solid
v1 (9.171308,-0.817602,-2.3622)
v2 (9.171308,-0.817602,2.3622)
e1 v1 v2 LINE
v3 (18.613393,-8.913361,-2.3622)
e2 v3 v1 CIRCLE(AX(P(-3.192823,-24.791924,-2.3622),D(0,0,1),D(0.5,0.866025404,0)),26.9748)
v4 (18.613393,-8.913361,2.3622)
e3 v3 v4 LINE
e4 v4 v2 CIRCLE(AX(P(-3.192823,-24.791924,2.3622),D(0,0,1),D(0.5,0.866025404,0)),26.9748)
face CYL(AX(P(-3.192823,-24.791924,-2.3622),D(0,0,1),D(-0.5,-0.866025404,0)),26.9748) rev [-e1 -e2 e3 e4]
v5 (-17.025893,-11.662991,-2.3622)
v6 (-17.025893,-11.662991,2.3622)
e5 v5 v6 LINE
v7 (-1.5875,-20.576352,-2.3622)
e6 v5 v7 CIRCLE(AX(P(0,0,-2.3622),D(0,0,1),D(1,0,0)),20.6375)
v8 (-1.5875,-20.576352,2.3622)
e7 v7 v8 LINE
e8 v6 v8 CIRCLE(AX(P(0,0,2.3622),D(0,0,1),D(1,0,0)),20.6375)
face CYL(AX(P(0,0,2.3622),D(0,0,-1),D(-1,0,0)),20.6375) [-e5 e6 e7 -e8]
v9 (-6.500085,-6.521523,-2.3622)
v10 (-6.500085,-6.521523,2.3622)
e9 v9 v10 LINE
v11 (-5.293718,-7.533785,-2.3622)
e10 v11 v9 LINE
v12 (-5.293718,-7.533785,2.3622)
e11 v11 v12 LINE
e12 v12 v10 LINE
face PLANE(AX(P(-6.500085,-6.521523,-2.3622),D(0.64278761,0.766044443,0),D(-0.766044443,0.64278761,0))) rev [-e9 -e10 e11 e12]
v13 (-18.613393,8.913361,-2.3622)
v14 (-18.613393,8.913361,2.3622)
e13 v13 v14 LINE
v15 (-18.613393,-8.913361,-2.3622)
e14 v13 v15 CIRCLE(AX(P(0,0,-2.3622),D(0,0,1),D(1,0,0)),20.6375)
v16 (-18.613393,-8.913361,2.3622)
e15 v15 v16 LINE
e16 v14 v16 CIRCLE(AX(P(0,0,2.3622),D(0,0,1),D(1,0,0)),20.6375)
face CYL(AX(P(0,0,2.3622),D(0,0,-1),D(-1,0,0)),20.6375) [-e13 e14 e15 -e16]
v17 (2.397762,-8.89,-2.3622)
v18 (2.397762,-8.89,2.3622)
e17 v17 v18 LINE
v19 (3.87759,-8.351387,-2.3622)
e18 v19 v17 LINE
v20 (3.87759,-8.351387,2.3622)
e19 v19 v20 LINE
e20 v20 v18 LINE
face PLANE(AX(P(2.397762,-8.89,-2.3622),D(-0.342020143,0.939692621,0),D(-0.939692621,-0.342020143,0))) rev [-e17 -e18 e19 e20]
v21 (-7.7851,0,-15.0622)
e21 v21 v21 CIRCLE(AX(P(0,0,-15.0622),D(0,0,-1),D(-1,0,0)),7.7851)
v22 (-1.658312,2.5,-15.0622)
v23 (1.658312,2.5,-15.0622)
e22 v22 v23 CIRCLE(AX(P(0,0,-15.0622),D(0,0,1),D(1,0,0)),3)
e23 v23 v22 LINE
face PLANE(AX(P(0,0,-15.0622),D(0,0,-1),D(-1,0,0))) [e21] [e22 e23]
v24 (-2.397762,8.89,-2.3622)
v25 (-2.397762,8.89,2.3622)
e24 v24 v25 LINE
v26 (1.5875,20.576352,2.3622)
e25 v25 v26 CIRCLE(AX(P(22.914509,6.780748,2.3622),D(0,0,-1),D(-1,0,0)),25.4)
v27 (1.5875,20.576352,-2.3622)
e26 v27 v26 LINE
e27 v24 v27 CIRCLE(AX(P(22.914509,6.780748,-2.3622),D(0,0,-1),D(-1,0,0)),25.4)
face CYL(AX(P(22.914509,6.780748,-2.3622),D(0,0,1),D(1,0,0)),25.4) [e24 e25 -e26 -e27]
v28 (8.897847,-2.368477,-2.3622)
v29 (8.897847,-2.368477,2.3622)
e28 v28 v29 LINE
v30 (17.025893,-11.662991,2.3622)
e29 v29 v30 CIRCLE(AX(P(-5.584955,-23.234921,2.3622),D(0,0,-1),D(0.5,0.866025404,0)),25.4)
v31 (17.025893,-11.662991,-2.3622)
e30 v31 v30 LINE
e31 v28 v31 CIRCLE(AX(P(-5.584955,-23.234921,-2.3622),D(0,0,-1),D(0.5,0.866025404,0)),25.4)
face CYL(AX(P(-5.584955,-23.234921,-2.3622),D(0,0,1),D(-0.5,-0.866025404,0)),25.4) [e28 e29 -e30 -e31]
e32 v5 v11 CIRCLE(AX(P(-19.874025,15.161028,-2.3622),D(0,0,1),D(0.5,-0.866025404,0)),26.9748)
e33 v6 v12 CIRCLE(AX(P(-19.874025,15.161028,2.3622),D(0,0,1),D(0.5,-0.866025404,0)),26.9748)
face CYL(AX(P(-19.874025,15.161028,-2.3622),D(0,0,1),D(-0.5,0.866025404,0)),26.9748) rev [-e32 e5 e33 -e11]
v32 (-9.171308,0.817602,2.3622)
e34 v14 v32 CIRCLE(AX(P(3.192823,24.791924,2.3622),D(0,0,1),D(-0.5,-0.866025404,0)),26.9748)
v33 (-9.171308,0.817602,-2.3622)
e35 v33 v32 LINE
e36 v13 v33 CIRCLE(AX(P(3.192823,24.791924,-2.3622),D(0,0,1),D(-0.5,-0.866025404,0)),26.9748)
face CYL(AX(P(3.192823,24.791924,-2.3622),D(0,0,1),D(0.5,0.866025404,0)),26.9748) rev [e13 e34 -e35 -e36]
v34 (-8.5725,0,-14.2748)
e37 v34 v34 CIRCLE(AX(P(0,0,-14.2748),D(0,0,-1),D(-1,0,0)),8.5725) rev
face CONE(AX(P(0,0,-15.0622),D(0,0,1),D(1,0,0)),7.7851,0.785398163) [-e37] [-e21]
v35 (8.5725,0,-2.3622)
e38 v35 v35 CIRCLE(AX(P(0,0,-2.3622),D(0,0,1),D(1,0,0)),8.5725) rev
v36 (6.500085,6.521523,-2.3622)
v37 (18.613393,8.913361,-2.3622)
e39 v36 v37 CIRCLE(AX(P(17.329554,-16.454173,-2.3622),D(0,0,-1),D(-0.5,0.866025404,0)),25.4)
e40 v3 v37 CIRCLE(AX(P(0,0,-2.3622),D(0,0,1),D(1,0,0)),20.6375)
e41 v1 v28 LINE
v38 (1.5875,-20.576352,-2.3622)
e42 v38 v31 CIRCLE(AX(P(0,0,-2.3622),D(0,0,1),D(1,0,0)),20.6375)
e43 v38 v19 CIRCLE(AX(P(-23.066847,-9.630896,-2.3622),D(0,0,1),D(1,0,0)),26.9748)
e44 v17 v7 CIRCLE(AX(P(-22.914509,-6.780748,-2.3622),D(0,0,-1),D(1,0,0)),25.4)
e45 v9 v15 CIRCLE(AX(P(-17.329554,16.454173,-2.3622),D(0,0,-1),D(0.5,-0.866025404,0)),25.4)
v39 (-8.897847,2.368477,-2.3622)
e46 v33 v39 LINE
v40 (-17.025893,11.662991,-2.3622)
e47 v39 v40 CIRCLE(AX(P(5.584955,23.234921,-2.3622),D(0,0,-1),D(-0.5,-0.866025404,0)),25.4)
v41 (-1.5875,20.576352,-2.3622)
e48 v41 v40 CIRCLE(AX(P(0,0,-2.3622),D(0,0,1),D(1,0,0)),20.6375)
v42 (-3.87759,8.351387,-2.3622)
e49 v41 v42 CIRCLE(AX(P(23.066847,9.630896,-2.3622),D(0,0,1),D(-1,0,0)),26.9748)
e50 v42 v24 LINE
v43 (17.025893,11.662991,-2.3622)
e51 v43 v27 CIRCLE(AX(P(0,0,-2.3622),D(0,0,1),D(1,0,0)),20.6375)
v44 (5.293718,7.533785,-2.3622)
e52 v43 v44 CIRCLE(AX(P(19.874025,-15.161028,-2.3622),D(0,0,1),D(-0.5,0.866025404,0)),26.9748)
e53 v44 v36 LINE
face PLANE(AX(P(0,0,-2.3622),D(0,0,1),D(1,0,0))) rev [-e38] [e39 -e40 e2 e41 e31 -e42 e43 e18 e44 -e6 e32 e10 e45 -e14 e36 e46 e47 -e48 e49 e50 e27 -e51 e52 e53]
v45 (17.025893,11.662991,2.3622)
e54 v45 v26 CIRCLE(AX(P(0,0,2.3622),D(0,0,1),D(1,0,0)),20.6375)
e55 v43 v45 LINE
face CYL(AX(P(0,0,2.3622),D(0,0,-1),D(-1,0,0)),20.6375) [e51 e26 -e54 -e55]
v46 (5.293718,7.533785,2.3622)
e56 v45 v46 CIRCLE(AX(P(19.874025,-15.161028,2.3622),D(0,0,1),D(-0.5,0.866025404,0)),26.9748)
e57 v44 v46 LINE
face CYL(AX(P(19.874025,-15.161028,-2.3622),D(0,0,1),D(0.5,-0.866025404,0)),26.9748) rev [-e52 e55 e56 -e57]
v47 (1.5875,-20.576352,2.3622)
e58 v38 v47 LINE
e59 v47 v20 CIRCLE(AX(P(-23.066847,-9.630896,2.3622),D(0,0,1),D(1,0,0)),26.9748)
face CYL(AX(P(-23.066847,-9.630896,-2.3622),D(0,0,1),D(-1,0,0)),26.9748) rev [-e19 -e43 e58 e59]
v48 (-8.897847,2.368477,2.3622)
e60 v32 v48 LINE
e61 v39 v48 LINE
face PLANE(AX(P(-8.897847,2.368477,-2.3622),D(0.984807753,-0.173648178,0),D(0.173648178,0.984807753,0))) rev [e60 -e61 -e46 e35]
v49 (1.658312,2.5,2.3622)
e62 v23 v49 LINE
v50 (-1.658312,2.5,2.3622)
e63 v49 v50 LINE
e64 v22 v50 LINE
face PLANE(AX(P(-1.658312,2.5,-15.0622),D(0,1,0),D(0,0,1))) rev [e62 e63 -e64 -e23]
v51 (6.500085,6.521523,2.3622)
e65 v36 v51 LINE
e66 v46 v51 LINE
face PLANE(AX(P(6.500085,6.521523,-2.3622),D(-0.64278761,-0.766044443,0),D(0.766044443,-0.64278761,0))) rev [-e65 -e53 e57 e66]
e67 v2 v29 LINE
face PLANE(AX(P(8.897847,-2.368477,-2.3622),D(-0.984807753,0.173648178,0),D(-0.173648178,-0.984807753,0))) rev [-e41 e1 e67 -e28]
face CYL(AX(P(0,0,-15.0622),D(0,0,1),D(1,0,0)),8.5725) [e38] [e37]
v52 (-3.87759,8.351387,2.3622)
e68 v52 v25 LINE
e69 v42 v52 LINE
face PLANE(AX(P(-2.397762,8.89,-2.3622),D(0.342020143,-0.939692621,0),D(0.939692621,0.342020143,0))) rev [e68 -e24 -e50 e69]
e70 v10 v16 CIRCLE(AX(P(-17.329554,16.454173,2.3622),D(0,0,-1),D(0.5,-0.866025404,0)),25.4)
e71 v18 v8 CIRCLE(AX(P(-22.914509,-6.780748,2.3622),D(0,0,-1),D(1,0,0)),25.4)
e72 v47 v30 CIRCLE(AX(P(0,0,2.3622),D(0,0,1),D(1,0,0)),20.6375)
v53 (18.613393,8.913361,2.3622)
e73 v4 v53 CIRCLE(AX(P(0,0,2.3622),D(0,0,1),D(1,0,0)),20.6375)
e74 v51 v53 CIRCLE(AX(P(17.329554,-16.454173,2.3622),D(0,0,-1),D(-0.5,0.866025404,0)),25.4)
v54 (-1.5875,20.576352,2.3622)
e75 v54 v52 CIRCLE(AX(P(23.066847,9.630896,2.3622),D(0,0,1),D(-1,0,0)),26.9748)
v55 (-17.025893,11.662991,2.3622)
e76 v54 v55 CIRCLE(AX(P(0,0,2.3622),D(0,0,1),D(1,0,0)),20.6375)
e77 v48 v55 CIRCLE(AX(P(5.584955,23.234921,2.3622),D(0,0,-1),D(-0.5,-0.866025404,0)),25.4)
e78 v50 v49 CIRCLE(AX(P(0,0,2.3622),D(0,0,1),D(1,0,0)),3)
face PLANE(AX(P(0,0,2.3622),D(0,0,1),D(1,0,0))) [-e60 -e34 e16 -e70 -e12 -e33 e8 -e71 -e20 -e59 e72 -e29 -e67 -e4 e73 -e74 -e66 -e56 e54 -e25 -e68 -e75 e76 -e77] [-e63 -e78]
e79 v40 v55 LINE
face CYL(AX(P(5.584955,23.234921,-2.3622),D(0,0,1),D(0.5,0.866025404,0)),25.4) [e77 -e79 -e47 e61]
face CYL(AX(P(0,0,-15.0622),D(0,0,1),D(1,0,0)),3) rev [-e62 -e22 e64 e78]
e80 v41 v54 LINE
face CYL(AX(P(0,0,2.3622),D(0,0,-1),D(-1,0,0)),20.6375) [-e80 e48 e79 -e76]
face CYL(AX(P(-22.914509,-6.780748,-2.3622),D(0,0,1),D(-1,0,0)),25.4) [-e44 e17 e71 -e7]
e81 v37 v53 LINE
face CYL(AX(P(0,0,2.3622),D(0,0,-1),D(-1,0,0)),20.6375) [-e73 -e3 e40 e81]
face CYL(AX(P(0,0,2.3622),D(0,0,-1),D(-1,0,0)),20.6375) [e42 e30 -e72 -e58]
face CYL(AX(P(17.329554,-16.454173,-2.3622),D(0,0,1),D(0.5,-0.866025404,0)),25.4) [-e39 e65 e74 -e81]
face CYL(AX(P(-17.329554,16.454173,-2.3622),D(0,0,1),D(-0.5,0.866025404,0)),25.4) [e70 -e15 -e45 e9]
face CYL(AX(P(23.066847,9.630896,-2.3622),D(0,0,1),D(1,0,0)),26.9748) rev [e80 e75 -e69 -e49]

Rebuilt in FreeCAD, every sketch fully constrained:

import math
import FreeCAD as App
import Part
import Sketcher
from FreeCAD import Vector
Q = App.Units.Quantity


def edges_at(feature, points):
    """Names of the edges that pass closest to the given points."""
    edges = feature.Shape.Edges
    near = lambda p: min(range(len(edges)), key=lambda i: edges[i].distToShape(Part.Vertex(*p))[0])
    return sorted({f"Edge{near(p) + 1}" for p in points})

doc = App.newDocument("Part")
body = doc.addObject("PartDesign::Body", "Body")

# Sketch on XY plane
sketch1 = doc.addObject("Sketcher::SketchObject", "Sketch")
body.addObject(sketch1)
sketch1.AttachmentSupport = (doc.XY_Plane, [""])
sketch1.MapMode = "FlatFace"
sketch1.addGeometry(Part.Circle(Vector(0, 0, 0), Vector(0, 0, 1), 20.6375), False)
sketch1.addConstraint(Sketcher.Constraint("Coincident", 0, 3, -1, 1))
sketch1.addConstraint(Sketcher.Constraint("Diameter", 0, Q("1.625 in")))
pad1 = doc.addObject("PartDesign::Pad", "Pad")
body.addObject(pad1)
pad1.Profile = sketch1
pad1.Length = Q("0.186 in")
pad1.Midplane = True

# Sketch on XY plane
sketch2 = doc.addObject("Sketcher::SketchObject", "Sketch001")
body.addObject(sketch2)
sketch2.AttachmentSupport = (doc.XY_Plane, [""])
sketch2.MapMode = "FlatFace"
sketch2.AttachmentOffset = App.Placement(Vector(0, 0, 0.093 * 25.4), App.Rotation())
sketch2.addGeometry(Part.LineSegment(Vector(-3.87759, 8.351387, 0), Vector(-2.397762, 8.89, 0)), False)
sketch2.addGeometry(Part.ArcOfCircle(Part.Circle(Vector(22.914509, 6.780748, 0), Vector(0, 0, 1), 25.4), math.radians(147.10276), math.radians(175.236592)), False)
sketch2.addGeometry(Part.ArcOfCircle(Part.Circle(Vector(0, 0, 0), Vector(0, 0, 1), 20.6375), math.radians(85.588274), math.radians(94.411726)), False)
sketch2.addGeometry(Part.ArcOfCircle(Part.Circle(Vector(23.066847, 9.630896, 0), Vector(0, 0, 1), 26.9748), math.radians(156.060866), math.radians(182.718761)), False)
sketch2.addConstraint(Sketcher.Constraint("Coincident", 0, 2, 1, 2))
sketch2.addConstraint(Sketcher.Constraint("Coincident", 1, 1, 2, 1))
sketch2.addConstraint(Sketcher.Constraint("Coincident", 2, 2, 3, 1))
sketch2.addConstraint(Sketcher.Constraint("Coincident", 3, 2, 0, 1))
sketch2.addConstraint(Sketcher.Constraint("Coincident", 2, 3, -1, 1))
sketch2.addConstraint(Sketcher.Constraint("Horizontal", 1, 1, 2, 2))
sketch2.addConstraint(Sketcher.Constraint("Radius", 1, Q("1 in")))
sketch2.addConstraint(Sketcher.Constraint("Angle", 0, Q("20 deg")))
sketch2.addConstraint(Sketcher.Constraint("Radius", 2, Q("0.8125 in")))
sketch2.addConstraint(Sketcher.Constraint("Radius", 3, Q("1.062 in")))
sketch2.addConstraint(Sketcher.Constraint("DistanceY", -1, 1, 0, 2, Q("0.35 in")))
sketch2.addConstraint(Sketcher.Constraint("Distance", 0, Q("0.062 in")))
sketch2.addConstraint(Sketcher.Constraint("DistanceX", -1, 1, 1, 1, Q("0.0625 in")))
sketch2.addConstraint(Sketcher.Constraint("DistanceX", 0, 2, -1, 1, Q("0.0944001 in")))
pocket1 = doc.addObject("PartDesign::Pocket", "Pocket")
body.addObject(pocket1)
pocket1.Profile = sketch2
pocket1.Type = "ThroughAll"

# Sketch on XY plane
sketch3 = doc.addObject("Sketcher::SketchObject", "Sketch002")
body.addObject(sketch3)
sketch3.AttachmentSupport = (doc.XY_Plane, [""])
sketch3.MapMode = "FlatFace"
sketch3.AttachmentOffset = App.Placement(Vector(0, 0, -0.093 * 25.4), App.Rotation())
sketch3.addGeometry(Part.Circle(Vector(0, 0, 0), Vector(0, 0, 1), 8.5725), False)
sketch3.addConstraint(Sketcher.Constraint("Coincident", 0, 3, -1, 1))
sketch3.addConstraint(Sketcher.Constraint("Diameter", 0, Q("0.675 in")))
pad2 = doc.addObject("PartDesign::Pad", "Pad001")
body.addObject(pad2)
pad2.Profile = sketch3
pad2.Length = Q("0.5 in")
pad2.Reversed = True
doc.recompute()

polarpattern = doc.addObject("PartDesign::PolarPattern", "PolarPattern")
body.addObject(polarpattern)
polarpattern.Originals = [pocket1]
polarpattern.Axis = (doc.Z_Axis, [""])
polarpattern.Angle = 360
polarpattern.Occurrences = 6
body.Tip = polarpattern

# Sketch on XY plane
sketch4 = doc.addObject("Sketcher::SketchObject", "Sketch003")
body.addObject(sketch4)
sketch4.AttachmentSupport = (doc.XY_Plane, [""])
sketch4.MapMode = "FlatFace"
sketch4.AttachmentOffset = App.Placement(Vector(0, 0, 0.093 * 25.4), App.Rotation())
sketch4.addGeometry(Part.LineSegment(Vector(1.658312, 2.5, 0), Vector(-1.658312, 2.5, 0)), False)
sketch4.addGeometry(Part.ArcOfCircle(Part.Circle(Vector(0, 0, 0), Vector(0, 0, 1), 3), math.radians(123.55731), math.radians(416.44269)), False)
sketch4.addConstraint(Sketcher.Constraint("Coincident", 0, 1, 1, 2))
sketch4.addConstraint(Sketcher.Constraint("Coincident", 1, 1, 0, 2))
sketch4.addConstraint(Sketcher.Constraint("Horizontal", 0))
sketch4.addConstraint(Sketcher.Constraint("Coincident", 1, 3, -1, 1))
sketch4.addConstraint(Sketcher.Constraint("Radius", 1, Q("3 mm")))
sketch4.addConstraint(Sketcher.Constraint("DistanceY", -1, 1, 0, 1, Q("2.5 mm")))
pocket2 = doc.addObject("PartDesign::Pocket", "Pocket001")
body.addObject(pocket2)
pocket2.Profile = sketch4
pocket2.Type = "ThroughAll"
doc.recompute()

chamfer = doc.addObject("PartDesign::Chamfer", "Chamfer")
body.addObject(chamfer)
chamfer.Base = (pocket2, edges_at(pocket2, [(-8.572, 0, -15.062)]))
chamfer.Size = Q("0.031 in")

doc.recompute()
